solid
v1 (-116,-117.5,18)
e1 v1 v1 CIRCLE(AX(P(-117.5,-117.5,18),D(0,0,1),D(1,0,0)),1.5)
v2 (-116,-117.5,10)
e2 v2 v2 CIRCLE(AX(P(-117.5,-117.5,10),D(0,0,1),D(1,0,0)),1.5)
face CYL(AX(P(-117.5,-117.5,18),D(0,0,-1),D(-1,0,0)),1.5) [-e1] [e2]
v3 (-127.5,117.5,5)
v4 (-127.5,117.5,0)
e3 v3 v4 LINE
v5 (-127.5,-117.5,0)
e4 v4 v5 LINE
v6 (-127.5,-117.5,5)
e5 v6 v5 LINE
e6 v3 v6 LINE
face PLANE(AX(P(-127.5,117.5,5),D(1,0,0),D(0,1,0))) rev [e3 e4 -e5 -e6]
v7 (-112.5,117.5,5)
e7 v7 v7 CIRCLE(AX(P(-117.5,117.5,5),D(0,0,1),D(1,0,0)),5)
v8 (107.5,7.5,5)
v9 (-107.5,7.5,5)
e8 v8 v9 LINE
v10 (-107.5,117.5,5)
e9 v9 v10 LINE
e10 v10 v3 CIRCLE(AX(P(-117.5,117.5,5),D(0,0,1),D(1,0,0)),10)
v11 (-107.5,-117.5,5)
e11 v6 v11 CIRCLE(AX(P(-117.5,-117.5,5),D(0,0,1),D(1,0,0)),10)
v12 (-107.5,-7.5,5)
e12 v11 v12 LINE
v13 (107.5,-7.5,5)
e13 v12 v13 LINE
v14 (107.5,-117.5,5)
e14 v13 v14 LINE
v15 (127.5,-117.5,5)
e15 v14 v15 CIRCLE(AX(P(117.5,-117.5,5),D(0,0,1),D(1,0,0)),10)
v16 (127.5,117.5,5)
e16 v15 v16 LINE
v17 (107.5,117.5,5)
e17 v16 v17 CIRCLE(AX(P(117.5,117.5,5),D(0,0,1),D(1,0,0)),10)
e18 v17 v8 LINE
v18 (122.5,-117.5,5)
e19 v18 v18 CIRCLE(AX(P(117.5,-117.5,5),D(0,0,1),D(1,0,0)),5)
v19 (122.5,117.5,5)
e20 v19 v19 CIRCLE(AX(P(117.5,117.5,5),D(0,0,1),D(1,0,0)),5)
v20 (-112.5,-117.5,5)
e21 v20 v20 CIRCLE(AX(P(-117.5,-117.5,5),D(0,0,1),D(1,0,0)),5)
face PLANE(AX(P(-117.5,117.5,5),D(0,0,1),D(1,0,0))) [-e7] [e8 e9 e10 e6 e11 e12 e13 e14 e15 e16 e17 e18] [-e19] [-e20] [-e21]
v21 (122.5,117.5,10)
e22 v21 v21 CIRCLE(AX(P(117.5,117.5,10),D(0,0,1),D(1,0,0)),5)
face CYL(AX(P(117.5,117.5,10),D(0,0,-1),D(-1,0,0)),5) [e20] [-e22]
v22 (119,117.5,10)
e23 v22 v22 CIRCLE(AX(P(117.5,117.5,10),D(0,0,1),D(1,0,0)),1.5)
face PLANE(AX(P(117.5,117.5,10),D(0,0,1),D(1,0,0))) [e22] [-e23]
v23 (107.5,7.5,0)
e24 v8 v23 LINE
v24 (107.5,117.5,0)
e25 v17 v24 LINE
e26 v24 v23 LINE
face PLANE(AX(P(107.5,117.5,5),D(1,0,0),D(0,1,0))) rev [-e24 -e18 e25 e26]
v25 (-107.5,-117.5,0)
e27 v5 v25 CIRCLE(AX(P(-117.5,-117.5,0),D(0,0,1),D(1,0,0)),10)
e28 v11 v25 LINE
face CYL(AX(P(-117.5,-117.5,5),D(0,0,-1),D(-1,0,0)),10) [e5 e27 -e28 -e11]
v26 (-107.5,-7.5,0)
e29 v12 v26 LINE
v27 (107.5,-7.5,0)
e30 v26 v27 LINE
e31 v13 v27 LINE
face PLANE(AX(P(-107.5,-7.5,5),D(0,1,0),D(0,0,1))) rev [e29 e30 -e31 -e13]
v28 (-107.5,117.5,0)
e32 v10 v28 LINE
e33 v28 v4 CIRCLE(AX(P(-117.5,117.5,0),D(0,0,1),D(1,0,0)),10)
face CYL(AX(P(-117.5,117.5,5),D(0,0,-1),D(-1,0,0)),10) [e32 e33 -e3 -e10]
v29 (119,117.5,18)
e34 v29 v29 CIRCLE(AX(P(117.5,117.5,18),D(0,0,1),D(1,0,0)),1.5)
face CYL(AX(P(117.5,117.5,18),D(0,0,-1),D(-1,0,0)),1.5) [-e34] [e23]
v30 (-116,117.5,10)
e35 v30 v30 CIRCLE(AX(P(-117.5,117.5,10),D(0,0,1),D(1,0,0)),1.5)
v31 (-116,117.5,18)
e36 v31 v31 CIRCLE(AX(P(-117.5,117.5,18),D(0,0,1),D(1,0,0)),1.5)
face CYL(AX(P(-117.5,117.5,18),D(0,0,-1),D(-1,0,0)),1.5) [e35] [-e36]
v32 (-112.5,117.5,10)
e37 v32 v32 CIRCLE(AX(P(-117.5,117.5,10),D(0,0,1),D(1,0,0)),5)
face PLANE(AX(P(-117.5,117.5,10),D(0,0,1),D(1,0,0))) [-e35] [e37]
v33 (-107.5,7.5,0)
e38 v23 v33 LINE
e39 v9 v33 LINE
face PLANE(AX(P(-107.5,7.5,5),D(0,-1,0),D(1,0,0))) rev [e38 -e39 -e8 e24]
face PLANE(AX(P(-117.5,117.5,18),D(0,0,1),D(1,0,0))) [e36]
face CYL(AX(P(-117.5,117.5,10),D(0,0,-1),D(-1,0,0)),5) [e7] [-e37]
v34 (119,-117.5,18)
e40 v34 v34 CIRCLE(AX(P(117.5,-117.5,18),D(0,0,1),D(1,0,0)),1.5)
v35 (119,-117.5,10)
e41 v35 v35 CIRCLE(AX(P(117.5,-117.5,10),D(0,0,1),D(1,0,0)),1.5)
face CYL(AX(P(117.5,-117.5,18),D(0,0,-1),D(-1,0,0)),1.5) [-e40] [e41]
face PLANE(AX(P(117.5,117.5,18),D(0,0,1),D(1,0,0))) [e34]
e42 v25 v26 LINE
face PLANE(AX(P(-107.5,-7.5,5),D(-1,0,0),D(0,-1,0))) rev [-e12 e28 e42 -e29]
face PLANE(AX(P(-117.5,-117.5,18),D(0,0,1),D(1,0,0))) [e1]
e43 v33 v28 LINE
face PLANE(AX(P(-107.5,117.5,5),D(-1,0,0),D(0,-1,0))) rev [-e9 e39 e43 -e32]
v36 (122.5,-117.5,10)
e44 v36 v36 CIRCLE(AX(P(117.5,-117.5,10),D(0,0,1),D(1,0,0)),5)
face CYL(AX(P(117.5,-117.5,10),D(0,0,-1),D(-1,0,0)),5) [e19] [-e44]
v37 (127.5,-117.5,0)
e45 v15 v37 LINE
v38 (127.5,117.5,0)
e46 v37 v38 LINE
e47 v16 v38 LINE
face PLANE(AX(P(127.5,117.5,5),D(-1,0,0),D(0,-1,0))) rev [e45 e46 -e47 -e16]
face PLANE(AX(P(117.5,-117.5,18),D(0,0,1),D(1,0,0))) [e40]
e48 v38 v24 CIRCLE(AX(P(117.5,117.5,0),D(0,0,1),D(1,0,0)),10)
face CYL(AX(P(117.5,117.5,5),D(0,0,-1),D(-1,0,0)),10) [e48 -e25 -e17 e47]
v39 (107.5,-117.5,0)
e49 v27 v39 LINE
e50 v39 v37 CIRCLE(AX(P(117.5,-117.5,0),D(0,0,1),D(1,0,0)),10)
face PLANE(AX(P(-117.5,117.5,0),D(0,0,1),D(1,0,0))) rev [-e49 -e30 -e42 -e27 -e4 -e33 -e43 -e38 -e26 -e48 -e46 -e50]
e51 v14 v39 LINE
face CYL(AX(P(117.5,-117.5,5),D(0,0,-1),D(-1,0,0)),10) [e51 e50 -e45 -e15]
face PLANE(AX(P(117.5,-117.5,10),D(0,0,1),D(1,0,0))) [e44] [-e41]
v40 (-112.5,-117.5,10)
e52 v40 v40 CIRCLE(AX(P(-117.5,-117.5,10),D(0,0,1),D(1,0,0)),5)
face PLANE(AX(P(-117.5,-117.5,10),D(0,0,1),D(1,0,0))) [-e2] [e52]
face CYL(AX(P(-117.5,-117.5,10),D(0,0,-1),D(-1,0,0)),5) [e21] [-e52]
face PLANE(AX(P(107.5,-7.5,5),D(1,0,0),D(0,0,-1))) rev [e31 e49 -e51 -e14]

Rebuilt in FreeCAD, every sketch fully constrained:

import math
import FreeCAD as App
import Part
import Sketcher
from FreeCAD import Vector

doc = App.newDocument("Part")
body = doc.addObject("PartDesign::Body", "Body")

sketch1 = body.newObject("Sketcher::SketchObject", "Sketch")
sketch1.AttachmentSupport = (doc.getObject("XY_Plane"), [""])
sketch1.MapMode = "FlatFace"
sketch1.addGeometry([
    Part.LineSegment(Vector(108, 8, 0), Vector(-108, 8, 0)),
    Part.LineSegment(Vector(-108, 8, 0), Vector(-108, 118, 0)),
    Part.ArcOfCircle(Part.Circle(Vector(-118, 118, 0), Vector(0, 0, 1), 10), math.radians(0), math.radians(180)),
    Part.LineSegment(Vector(-128, 118, 0), Vector(-128, -118, 0)),
    Part.ArcOfCircle(Part.Circle(Vector(-118, -118, 0), Vector(0, 0, 1), 10), math.radians(180), math.radians(360)),
    Part.LineSegment(Vector(-108, -118, 0), Vector(-108, -8, 0)),
    Part.LineSegment(Vector(-108, -8, 0), Vector(108, -8, 0)),
    Part.LineSegment(Vector(108, -8, 0), Vector(108, -118, 0)),
    Part.ArcOfCircle(Part.Circle(Vector(118, -118, 0), Vector(0, 0, 1), 10), math.radians(180), math.radians(360)),
    Part.LineSegment(Vector(128, -118, 0), Vector(128, 118, 0)),
    Part.ArcOfCircle(Part.Circle(Vector(118, 118, 0), Vector(0, 0, 1), 10), math.radians(0), math.radians(180)),
    Part.LineSegment(Vector(108, 118, 0), Vector(108, 8, 0)),
], False)
sketch1.addConstraint([
    Sketcher.Constraint("Coincident", 0, 2, 1, 1),
    Sketcher.Constraint("Tangent", 1, 2, 2, 1),
    Sketcher.Constraint("Tangent", 2, 2, 3, 1),
    Sketcher.Constraint("Tangent", 3, 2, 4, 1),
    Sketcher.Constraint("Tangent", 4, 2, 5, 1),
    Sketcher.Constraint("Coincident", 5, 2, 6, 1),
    Sketcher.Constraint("Coincident", 6, 2, 7, 1),
    Sketcher.Constraint("Tangent", 7, 2, 8, 1),
    Sketcher.Constraint("Tangent", 8, 2, 9, 1),
    Sketcher.Constraint("Tangent", 9, 2, 10, 1),
    Sketcher.Constraint("Tangent", 10, 2, 11, 1),
    Sketcher.Constraint("Coincident", 11, 2, 0, 1),
    Sketcher.Constraint("Horizontal", 0),
    Sketcher.Constraint("Vertical", 1),
    Sketcher.Constraint("Vertical", 3),
    Sketcher.Constraint("Vertical", 5),
    Sketcher.Constraint("Horizontal", 6),
    Sketcher.Constraint("Vertical", 7),
    Sketcher.Constraint("Vertical", 9),
    Sketcher.Constraint("Vertical", 11),
    Sketcher.Constraint("Equal", 2, 4),
    Sketcher.Constraint("Equal", 4, 8),
    Sketcher.Constraint("Equal", 8, 10),
    Sketcher.Constraint("Symmetric", 2, 3, 8, 3, -1, 1),
    Sketcher.Constraint("Horizontal", 4, 3, 8, 3),
    Sketcher.Constraint("Horizontal", 2, 3, 10, 3),
    Sketcher.Constraint("Equal", 1, 5),
    Sketcher.Constraint("Radius", 2, 10.0),
    Sketcher.Constraint("DistanceX", 0, 2, 0, 1, 215.0),
    Sketcher.Constraint("DistanceY", 1, 1, 1, 2, 110.0),
    Sketcher.Constraint("DistanceY", 3, 2, 3, 1, 235.0),
])
pad1 = body.newObject("PartDesign::Pad", "Pad")
pad1.Profile = sketch1
pad1.Length = 5

sketch2 = body.newObject("Sketcher::SketchObject", "Sketch001")
sketch2.AttachmentSupport = (doc.getObject("XY_Plane"), [""])
sketch2.MapMode = "FlatFace"
sketch2.AttachmentOffset = App.Placement(Vector(0, 0, 5), App.Rotation())
sketch2.addGeometry([
    Part.Circle(Vector(118, -118, 0), Vector(0, 0, 1), 5),
    Part.Circle(Vector(118, 118, 0), Vector(0, 0, 1), 5),
    Part.Circle(Vector(-118, 118, 0), Vector(0, 0, 1), 5),
    Part.Circle(Vector(-118, -118, 0), Vector(0, 0, 1), 5),
], False)
sketch2.addConstraint([
    Sketcher.Constraint("Equal", 0, 1),
    Sketcher.Constraint("Equal", 1, 2),
    Sketcher.Constraint("Equal", 2, 3),
    Sketcher.Constraint("Symmetric", 0, 3, 2, 3, -1, 1),
    Sketcher.Constraint("Symmetric", 1, 3, 3, 3, -1, 1),
    Sketcher.Constraint("Symmetric", 1, 3, 2, 3, -2),
    Sketcher.Constraint("Diameter", 0, 10.0),
    Sketcher.Constraint("DistanceY", 0, 3, 1, 3, 235.0),
    Sketcher.Constraint("DistanceX", 2, 3, 1, 3, 235.0),
])
pad2 = body.newObject("PartDesign::Pad", "Pad001")
pad2.Profile = sketch2
pad2.Length = 5

sketch3 = body.newObject("Sketcher::SketchObject", "Sketch002")
sketch3.AttachmentSupport = (doc.getObject("XY_Plane"), [""])
sketch3.MapMode = "FlatFace"
sketch3.AttachmentOffset = App.Placement(Vector(0, 0, 10), App.Rotation())
sketch3.addGeometry([
    Part.Circle(Vector(-117.5, 117.5, 0), Vector(0, 0, 1), 1.5),
    Part.Circle(Vector(-117.5, -117.5, 0), Vector(0, 0, 1), 1.5),
    Part.Circle(Vector(117.5, -117.5, 0), Vector(0, 0, 1), 1.5),
    Part.Circle(Vector(117.5, 117.5, 0), Vector(0, 0, 1), 1.5),
], False)
sketch3.addConstraint([
    Sketcher.Constraint("Equal", 0, 1),
    Sketcher.Constraint("Equal", 1, 2),
    Sketcher.Constraint("Equal", 2, 3),
    Sketcher.Constraint("Symmetric", 0, 3, 2, 3, -1, 1),
    Sketcher.Constraint("Symmetric", 1, 3, 3, 3, -1, 1),
    Sketcher.Constraint("Symmetric", 1, 3, 2, 3, -2),
    Sketcher.Constraint("Diameter", 0, 3.0),
    Sketcher.Constraint("DistanceY", 1, 3, 0, 3, 235.0),
    Sketcher.Constraint("DistanceX", 1, 3, 2, 3, 235.0),
])
pad3 = body.newObject("PartDesign::Pad", "Pad002")
pad3.Profile = sketch3
pad3.Length = 8

doc.recompute()
